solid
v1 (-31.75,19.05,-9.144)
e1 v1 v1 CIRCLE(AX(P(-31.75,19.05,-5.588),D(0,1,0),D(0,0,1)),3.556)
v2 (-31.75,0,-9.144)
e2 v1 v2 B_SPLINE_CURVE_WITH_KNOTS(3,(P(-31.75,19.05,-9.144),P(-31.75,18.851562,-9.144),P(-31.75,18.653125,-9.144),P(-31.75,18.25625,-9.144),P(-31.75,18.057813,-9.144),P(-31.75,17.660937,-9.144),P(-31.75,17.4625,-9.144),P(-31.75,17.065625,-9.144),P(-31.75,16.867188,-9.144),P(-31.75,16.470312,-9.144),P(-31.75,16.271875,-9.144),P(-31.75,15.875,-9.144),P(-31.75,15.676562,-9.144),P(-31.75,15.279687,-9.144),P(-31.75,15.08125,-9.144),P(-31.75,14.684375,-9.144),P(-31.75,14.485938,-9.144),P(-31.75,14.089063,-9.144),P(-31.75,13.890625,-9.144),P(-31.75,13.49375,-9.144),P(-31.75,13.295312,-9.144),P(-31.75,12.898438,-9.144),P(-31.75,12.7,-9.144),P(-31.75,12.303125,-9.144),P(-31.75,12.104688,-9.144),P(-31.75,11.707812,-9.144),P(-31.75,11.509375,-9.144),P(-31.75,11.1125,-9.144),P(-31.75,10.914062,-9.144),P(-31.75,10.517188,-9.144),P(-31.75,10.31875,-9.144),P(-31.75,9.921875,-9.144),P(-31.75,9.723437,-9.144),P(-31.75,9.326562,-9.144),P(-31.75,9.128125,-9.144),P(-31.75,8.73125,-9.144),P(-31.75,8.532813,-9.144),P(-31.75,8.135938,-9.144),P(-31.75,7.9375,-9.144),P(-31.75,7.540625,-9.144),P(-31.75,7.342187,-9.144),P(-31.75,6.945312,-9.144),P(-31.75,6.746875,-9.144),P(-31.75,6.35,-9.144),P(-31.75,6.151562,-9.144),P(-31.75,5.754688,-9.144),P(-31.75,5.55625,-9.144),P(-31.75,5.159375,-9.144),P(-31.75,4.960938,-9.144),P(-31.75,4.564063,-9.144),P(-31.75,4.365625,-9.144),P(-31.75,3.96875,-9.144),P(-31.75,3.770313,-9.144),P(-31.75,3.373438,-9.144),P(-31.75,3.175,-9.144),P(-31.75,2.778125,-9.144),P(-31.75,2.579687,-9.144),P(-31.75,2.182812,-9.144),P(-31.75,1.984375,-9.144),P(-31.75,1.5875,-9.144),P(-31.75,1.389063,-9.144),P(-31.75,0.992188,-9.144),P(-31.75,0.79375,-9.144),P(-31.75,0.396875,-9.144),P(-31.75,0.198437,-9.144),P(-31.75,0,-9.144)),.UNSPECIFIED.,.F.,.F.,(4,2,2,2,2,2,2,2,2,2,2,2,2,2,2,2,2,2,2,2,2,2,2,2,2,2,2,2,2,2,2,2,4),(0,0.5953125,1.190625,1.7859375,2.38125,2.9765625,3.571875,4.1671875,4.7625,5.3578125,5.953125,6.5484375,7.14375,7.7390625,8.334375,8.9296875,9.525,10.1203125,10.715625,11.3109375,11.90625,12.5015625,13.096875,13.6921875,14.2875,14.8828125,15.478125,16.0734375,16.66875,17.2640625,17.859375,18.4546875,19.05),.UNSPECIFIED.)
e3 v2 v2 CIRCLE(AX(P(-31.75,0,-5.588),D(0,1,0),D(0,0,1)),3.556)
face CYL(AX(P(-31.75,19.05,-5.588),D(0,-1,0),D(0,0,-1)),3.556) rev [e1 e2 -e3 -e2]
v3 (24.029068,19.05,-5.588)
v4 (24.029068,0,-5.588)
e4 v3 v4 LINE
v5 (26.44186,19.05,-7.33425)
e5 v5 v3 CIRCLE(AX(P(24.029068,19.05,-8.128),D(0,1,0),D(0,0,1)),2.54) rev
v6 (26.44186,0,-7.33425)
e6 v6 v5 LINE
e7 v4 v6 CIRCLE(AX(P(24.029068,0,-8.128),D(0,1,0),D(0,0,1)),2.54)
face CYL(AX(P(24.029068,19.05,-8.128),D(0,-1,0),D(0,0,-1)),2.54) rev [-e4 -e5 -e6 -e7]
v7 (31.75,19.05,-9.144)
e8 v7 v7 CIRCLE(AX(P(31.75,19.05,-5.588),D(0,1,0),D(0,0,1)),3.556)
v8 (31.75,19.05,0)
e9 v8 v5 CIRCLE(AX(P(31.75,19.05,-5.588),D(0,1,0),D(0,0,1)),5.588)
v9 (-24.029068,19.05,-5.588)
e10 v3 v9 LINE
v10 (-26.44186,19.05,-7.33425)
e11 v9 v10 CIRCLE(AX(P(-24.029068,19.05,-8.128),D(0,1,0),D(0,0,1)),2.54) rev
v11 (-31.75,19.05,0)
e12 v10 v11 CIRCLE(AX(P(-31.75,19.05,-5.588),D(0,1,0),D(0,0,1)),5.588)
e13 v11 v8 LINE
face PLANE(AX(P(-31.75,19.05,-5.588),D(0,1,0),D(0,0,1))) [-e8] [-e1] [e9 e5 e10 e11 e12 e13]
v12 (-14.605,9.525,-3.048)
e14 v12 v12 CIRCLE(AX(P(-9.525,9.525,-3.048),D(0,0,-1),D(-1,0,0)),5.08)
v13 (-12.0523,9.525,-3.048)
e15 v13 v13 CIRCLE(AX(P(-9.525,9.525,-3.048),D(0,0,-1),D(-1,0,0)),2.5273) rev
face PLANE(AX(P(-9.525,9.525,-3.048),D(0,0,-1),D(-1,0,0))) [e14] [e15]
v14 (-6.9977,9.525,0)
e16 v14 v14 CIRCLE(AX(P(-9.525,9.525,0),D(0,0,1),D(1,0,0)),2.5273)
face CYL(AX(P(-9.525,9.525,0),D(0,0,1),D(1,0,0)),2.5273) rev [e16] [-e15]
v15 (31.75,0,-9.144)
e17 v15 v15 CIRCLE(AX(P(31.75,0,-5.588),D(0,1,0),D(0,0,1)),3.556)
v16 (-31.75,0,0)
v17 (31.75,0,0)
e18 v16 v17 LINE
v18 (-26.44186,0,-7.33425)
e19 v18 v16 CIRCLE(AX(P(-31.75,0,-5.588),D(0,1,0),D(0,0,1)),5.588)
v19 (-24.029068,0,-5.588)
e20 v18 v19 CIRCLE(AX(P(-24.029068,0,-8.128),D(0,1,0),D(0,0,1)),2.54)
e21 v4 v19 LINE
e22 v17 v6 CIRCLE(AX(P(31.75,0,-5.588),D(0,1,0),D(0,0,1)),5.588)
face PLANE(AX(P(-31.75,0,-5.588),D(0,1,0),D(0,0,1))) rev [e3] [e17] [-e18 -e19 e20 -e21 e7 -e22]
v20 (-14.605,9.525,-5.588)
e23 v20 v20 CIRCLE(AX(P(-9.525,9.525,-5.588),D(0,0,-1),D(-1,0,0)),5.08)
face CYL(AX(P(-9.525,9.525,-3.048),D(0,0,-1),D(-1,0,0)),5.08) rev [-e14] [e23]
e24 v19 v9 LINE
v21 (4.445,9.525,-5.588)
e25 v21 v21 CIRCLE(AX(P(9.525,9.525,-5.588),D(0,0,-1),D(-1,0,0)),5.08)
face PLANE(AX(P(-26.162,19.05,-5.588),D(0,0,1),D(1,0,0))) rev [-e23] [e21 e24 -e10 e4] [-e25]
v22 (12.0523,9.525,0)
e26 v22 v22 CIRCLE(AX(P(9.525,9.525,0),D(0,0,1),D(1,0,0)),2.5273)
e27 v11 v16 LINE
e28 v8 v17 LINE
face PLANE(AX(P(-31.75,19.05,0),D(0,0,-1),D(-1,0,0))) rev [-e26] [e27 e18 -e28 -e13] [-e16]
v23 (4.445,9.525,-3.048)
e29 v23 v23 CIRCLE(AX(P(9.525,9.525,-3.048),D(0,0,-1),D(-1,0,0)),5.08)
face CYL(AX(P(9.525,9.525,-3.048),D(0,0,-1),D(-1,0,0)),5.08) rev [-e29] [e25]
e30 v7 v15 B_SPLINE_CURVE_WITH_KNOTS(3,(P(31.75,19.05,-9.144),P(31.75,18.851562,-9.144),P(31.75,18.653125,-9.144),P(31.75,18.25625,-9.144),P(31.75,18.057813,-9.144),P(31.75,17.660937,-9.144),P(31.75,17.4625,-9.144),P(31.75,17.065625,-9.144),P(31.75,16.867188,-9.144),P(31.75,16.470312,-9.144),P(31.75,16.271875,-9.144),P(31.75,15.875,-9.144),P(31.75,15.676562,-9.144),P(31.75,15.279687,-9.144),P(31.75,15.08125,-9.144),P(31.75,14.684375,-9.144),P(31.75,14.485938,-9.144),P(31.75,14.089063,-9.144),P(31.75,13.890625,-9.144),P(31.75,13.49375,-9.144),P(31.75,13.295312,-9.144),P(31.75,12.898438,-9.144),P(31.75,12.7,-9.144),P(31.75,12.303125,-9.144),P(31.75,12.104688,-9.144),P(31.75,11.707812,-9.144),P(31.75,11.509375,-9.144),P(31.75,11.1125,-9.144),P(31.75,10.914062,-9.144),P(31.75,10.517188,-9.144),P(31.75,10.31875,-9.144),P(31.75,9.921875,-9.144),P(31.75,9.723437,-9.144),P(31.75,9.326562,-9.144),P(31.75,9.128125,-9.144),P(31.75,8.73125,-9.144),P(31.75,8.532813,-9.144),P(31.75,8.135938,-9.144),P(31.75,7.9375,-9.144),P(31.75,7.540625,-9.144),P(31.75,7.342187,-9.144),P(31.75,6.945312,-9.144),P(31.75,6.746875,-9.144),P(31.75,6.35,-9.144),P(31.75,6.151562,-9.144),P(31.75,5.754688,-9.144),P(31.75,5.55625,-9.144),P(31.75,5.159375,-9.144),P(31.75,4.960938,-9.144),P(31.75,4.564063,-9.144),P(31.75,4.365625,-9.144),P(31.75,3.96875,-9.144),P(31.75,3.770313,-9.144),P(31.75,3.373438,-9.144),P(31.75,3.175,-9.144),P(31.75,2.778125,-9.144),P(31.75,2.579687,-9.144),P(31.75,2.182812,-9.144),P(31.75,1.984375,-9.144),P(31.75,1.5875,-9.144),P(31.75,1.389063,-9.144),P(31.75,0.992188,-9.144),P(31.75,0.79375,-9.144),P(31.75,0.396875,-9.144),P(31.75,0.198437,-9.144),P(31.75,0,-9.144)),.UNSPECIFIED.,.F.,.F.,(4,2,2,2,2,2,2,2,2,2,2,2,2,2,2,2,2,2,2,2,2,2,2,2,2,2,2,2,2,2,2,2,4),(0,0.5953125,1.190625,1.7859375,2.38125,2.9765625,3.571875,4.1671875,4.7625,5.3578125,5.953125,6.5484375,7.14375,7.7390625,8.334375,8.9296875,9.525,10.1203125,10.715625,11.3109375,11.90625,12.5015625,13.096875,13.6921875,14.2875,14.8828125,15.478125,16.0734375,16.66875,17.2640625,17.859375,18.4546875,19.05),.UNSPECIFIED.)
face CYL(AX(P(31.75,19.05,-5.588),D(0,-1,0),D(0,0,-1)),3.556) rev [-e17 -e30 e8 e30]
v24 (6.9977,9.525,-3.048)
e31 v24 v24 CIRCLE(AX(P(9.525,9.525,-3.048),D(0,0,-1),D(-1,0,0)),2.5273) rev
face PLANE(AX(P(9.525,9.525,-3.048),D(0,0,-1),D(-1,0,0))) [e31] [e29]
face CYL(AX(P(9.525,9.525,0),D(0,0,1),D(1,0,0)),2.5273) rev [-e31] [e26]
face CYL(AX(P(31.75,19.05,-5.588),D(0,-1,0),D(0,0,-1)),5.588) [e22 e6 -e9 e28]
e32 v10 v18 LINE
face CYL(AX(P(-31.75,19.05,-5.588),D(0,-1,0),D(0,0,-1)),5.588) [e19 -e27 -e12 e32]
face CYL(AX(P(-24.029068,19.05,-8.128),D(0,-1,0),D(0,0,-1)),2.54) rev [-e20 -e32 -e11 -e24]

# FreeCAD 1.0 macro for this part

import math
import FreeCAD as App
import Part
import Sketcher

V = App.Vector
Q = App.Units.Quantity


def edges_at(feature, points):
    """Names of the edges that pass closest to the given points."""
    edges = feature.Shape.Edges
    near = lambda p: min(range(len(edges)), key=lambda i: edges[i].distToShape(Part.Vertex(*p))[0])
    return sorted({f"Edge{near(p) + 1}" for p in points})

doc = App.newDocument("Part")
body = doc.addObject("PartDesign::Body", "Body")

# Sketch on XZ plane
sketch1 = doc.addObject("Sketcher::SketchObject", "Sketch")
body.addObject(sketch1)
sketch1.AttachmentSupport = (doc.XZ_Plane, [""])
sketch1.MapMode = "FlatFace"
sketch1.addGeometry([
    Part.LineSegment(V(-31.8, 0, 0), V(31.8, 0, 0)),  # 0
    Part.ArcOfCircle(Part.Circle(V(31.8, -5.6, 0), V(0, 0, 1), 5.6), math.radians(180), math.radians(450)),  # 1
    Part.LineSegment(V(26.2, -5.6, 0), V(-26.2, -5.6, 0)),  # 2
    Part.ArcOfCircle(Part.Circle(V(-31.8, -5.6, 0), V(0, 0, 1), 5.6), math.radians(90), math.radians(360)),  # 3
    Part.Circle(V(-31.8, -5.6, 0), V(0, 0, 1), 3.6),  # 4
    Part.Circle(V(31.8, -5.6, 0), V(0, 0, 1), 3.6),  # 5
], False)
sketch1.addConstraint([
    Sketcher.Constraint("Tangent", 0, 2, 1, 2),
    Sketcher.Constraint("Coincident", 1, 1, 2, 1),
    Sketcher.Constraint("Coincident", 2, 2, 3, 2),
    Sketcher.Constraint("Tangent", 3, 1, 0, 1),
    Sketcher.Constraint("Horizontal", 0),
    Sketcher.Constraint("Horizontal", 2),
    Sketcher.Constraint("Coincident", 4, 3, 3, 3),
    Sketcher.Constraint("Coincident", 5, 3, 1, 3),
    Sketcher.Constraint("Equal", 1, 3),
    Sketcher.Constraint("Equal", 4, 5),
    Sketcher.Constraint("Symmetric", 0, 2, 3, 1, -1, 1),
    Sketcher.Constraint("Horizontal", 5, 3, 1, 1),
    Sketcher.Constraint("Diameter", 4, Q("0.28 in")),
    Sketcher.Constraint("Radius", 1, Q("0.22 in")),
    Sketcher.Constraint("DistanceX", 0, 1, 0, 2, Q("2.5 in")),
])
pad1 = doc.addObject("PartDesign::Pad", "Pad")
body.addObject(pad1)
pad1.Profile = sketch1
pad1.Length = Q("0.75 in")
pad1.Reversed = True
doc.recompute()

fillet = doc.addObject("PartDesign::Fillet", "Fillet")
body.addObject(fillet)
fillet.Base = (pad1, edges_at(pad1, [(-26.162, 9.525, -5.588), (26.162, 9.525, -5.588)]))
fillet.Radius = Q("0.1 in")

# Sketch on XY plane
sketch2 = doc.addObject("Sketcher::SketchObject", "Sketch001")
body.addObject(sketch2)
sketch2.AttachmentSupport = (doc.XY_Plane, [""])
sketch2.MapMode = "FlatFace"
sketch2.addGeometry([
    Part.Circle(V(-9.5, 9.5, 0), V(0, 0, 1), 2.5),
    Part.Circle(V(9.5, 9.5, 0), V(0, 0, 1), 2.5),
], False)
sketch2.addConstraint([
    Sketcher.Constraint("Equal", 0, 1),
    Sketcher.Constraint("Symmetric", 0, 3, 1, 3, -2),
    Sketcher.Constraint("Diameter", 0, Q("0.199 in")),
    Sketcher.Constraint("DistanceX", 0, 3, 1, 3, Q("0.75 in")),
    Sketcher.Constraint("DistanceY", -1, 1, 0, 3, Q("0.375 in")),
])
doc.recompute()
hole = doc.addObject("PartDesign::Hole", "Hole")
body.addObject(hole)
hole.Profile = sketch2
hole.ThreadType = "None"
hole.Diameter = Q("0.199 in")
hole.DepthType = "Dimension"
hole.Depth = 9.149445
hole.DrillPoint = "Angled"
hole.DrillPointAngle = 118

# Sketch on XY plane
sketch3 = doc.addObject("Sketcher::SketchObject", "Sketch002")
body.addObject(sketch3)
sketch3.AttachmentSupport = (doc.XY_Plane, [""])
sketch3.MapMode = "FlatFace"
sketch3.AttachmentOffset = App.Placement(V(0, 0, -0.22 * 25.4), App.Rotation())
sketch3.addGeometry([
    Part.Circle(V(10, 10, 0), V(0, 0, 1), 5),
    Part.Circle(V(-10, 10, 0), V(0, 0, 1), 5),
], False)
sketch3.addConstraint([
    Sketcher.Constraint("Equal", 0, 1),
    Sketcher.Constraint("Symmetric", 0, 3, 1, 3, -2),
    Sketcher.Constraint("Diameter", 0, Q("0.4 in")),
    Sketcher.Constraint("DistanceX", 1, 3, 0, 3, Q("0.75 in")),
    Sketcher.Constraint("DistanceY", -1, 1, 0, 3, Q("0.375 in")),
])
pocket1 = doc.addObject("PartDesign::Pocket", "Pocket")
body.addObject(pocket1)
pocket1.Profile = sketch3
pocket1.Length = Q("0.1 in")
pocket1.Reversed = True

doc.recompute()
